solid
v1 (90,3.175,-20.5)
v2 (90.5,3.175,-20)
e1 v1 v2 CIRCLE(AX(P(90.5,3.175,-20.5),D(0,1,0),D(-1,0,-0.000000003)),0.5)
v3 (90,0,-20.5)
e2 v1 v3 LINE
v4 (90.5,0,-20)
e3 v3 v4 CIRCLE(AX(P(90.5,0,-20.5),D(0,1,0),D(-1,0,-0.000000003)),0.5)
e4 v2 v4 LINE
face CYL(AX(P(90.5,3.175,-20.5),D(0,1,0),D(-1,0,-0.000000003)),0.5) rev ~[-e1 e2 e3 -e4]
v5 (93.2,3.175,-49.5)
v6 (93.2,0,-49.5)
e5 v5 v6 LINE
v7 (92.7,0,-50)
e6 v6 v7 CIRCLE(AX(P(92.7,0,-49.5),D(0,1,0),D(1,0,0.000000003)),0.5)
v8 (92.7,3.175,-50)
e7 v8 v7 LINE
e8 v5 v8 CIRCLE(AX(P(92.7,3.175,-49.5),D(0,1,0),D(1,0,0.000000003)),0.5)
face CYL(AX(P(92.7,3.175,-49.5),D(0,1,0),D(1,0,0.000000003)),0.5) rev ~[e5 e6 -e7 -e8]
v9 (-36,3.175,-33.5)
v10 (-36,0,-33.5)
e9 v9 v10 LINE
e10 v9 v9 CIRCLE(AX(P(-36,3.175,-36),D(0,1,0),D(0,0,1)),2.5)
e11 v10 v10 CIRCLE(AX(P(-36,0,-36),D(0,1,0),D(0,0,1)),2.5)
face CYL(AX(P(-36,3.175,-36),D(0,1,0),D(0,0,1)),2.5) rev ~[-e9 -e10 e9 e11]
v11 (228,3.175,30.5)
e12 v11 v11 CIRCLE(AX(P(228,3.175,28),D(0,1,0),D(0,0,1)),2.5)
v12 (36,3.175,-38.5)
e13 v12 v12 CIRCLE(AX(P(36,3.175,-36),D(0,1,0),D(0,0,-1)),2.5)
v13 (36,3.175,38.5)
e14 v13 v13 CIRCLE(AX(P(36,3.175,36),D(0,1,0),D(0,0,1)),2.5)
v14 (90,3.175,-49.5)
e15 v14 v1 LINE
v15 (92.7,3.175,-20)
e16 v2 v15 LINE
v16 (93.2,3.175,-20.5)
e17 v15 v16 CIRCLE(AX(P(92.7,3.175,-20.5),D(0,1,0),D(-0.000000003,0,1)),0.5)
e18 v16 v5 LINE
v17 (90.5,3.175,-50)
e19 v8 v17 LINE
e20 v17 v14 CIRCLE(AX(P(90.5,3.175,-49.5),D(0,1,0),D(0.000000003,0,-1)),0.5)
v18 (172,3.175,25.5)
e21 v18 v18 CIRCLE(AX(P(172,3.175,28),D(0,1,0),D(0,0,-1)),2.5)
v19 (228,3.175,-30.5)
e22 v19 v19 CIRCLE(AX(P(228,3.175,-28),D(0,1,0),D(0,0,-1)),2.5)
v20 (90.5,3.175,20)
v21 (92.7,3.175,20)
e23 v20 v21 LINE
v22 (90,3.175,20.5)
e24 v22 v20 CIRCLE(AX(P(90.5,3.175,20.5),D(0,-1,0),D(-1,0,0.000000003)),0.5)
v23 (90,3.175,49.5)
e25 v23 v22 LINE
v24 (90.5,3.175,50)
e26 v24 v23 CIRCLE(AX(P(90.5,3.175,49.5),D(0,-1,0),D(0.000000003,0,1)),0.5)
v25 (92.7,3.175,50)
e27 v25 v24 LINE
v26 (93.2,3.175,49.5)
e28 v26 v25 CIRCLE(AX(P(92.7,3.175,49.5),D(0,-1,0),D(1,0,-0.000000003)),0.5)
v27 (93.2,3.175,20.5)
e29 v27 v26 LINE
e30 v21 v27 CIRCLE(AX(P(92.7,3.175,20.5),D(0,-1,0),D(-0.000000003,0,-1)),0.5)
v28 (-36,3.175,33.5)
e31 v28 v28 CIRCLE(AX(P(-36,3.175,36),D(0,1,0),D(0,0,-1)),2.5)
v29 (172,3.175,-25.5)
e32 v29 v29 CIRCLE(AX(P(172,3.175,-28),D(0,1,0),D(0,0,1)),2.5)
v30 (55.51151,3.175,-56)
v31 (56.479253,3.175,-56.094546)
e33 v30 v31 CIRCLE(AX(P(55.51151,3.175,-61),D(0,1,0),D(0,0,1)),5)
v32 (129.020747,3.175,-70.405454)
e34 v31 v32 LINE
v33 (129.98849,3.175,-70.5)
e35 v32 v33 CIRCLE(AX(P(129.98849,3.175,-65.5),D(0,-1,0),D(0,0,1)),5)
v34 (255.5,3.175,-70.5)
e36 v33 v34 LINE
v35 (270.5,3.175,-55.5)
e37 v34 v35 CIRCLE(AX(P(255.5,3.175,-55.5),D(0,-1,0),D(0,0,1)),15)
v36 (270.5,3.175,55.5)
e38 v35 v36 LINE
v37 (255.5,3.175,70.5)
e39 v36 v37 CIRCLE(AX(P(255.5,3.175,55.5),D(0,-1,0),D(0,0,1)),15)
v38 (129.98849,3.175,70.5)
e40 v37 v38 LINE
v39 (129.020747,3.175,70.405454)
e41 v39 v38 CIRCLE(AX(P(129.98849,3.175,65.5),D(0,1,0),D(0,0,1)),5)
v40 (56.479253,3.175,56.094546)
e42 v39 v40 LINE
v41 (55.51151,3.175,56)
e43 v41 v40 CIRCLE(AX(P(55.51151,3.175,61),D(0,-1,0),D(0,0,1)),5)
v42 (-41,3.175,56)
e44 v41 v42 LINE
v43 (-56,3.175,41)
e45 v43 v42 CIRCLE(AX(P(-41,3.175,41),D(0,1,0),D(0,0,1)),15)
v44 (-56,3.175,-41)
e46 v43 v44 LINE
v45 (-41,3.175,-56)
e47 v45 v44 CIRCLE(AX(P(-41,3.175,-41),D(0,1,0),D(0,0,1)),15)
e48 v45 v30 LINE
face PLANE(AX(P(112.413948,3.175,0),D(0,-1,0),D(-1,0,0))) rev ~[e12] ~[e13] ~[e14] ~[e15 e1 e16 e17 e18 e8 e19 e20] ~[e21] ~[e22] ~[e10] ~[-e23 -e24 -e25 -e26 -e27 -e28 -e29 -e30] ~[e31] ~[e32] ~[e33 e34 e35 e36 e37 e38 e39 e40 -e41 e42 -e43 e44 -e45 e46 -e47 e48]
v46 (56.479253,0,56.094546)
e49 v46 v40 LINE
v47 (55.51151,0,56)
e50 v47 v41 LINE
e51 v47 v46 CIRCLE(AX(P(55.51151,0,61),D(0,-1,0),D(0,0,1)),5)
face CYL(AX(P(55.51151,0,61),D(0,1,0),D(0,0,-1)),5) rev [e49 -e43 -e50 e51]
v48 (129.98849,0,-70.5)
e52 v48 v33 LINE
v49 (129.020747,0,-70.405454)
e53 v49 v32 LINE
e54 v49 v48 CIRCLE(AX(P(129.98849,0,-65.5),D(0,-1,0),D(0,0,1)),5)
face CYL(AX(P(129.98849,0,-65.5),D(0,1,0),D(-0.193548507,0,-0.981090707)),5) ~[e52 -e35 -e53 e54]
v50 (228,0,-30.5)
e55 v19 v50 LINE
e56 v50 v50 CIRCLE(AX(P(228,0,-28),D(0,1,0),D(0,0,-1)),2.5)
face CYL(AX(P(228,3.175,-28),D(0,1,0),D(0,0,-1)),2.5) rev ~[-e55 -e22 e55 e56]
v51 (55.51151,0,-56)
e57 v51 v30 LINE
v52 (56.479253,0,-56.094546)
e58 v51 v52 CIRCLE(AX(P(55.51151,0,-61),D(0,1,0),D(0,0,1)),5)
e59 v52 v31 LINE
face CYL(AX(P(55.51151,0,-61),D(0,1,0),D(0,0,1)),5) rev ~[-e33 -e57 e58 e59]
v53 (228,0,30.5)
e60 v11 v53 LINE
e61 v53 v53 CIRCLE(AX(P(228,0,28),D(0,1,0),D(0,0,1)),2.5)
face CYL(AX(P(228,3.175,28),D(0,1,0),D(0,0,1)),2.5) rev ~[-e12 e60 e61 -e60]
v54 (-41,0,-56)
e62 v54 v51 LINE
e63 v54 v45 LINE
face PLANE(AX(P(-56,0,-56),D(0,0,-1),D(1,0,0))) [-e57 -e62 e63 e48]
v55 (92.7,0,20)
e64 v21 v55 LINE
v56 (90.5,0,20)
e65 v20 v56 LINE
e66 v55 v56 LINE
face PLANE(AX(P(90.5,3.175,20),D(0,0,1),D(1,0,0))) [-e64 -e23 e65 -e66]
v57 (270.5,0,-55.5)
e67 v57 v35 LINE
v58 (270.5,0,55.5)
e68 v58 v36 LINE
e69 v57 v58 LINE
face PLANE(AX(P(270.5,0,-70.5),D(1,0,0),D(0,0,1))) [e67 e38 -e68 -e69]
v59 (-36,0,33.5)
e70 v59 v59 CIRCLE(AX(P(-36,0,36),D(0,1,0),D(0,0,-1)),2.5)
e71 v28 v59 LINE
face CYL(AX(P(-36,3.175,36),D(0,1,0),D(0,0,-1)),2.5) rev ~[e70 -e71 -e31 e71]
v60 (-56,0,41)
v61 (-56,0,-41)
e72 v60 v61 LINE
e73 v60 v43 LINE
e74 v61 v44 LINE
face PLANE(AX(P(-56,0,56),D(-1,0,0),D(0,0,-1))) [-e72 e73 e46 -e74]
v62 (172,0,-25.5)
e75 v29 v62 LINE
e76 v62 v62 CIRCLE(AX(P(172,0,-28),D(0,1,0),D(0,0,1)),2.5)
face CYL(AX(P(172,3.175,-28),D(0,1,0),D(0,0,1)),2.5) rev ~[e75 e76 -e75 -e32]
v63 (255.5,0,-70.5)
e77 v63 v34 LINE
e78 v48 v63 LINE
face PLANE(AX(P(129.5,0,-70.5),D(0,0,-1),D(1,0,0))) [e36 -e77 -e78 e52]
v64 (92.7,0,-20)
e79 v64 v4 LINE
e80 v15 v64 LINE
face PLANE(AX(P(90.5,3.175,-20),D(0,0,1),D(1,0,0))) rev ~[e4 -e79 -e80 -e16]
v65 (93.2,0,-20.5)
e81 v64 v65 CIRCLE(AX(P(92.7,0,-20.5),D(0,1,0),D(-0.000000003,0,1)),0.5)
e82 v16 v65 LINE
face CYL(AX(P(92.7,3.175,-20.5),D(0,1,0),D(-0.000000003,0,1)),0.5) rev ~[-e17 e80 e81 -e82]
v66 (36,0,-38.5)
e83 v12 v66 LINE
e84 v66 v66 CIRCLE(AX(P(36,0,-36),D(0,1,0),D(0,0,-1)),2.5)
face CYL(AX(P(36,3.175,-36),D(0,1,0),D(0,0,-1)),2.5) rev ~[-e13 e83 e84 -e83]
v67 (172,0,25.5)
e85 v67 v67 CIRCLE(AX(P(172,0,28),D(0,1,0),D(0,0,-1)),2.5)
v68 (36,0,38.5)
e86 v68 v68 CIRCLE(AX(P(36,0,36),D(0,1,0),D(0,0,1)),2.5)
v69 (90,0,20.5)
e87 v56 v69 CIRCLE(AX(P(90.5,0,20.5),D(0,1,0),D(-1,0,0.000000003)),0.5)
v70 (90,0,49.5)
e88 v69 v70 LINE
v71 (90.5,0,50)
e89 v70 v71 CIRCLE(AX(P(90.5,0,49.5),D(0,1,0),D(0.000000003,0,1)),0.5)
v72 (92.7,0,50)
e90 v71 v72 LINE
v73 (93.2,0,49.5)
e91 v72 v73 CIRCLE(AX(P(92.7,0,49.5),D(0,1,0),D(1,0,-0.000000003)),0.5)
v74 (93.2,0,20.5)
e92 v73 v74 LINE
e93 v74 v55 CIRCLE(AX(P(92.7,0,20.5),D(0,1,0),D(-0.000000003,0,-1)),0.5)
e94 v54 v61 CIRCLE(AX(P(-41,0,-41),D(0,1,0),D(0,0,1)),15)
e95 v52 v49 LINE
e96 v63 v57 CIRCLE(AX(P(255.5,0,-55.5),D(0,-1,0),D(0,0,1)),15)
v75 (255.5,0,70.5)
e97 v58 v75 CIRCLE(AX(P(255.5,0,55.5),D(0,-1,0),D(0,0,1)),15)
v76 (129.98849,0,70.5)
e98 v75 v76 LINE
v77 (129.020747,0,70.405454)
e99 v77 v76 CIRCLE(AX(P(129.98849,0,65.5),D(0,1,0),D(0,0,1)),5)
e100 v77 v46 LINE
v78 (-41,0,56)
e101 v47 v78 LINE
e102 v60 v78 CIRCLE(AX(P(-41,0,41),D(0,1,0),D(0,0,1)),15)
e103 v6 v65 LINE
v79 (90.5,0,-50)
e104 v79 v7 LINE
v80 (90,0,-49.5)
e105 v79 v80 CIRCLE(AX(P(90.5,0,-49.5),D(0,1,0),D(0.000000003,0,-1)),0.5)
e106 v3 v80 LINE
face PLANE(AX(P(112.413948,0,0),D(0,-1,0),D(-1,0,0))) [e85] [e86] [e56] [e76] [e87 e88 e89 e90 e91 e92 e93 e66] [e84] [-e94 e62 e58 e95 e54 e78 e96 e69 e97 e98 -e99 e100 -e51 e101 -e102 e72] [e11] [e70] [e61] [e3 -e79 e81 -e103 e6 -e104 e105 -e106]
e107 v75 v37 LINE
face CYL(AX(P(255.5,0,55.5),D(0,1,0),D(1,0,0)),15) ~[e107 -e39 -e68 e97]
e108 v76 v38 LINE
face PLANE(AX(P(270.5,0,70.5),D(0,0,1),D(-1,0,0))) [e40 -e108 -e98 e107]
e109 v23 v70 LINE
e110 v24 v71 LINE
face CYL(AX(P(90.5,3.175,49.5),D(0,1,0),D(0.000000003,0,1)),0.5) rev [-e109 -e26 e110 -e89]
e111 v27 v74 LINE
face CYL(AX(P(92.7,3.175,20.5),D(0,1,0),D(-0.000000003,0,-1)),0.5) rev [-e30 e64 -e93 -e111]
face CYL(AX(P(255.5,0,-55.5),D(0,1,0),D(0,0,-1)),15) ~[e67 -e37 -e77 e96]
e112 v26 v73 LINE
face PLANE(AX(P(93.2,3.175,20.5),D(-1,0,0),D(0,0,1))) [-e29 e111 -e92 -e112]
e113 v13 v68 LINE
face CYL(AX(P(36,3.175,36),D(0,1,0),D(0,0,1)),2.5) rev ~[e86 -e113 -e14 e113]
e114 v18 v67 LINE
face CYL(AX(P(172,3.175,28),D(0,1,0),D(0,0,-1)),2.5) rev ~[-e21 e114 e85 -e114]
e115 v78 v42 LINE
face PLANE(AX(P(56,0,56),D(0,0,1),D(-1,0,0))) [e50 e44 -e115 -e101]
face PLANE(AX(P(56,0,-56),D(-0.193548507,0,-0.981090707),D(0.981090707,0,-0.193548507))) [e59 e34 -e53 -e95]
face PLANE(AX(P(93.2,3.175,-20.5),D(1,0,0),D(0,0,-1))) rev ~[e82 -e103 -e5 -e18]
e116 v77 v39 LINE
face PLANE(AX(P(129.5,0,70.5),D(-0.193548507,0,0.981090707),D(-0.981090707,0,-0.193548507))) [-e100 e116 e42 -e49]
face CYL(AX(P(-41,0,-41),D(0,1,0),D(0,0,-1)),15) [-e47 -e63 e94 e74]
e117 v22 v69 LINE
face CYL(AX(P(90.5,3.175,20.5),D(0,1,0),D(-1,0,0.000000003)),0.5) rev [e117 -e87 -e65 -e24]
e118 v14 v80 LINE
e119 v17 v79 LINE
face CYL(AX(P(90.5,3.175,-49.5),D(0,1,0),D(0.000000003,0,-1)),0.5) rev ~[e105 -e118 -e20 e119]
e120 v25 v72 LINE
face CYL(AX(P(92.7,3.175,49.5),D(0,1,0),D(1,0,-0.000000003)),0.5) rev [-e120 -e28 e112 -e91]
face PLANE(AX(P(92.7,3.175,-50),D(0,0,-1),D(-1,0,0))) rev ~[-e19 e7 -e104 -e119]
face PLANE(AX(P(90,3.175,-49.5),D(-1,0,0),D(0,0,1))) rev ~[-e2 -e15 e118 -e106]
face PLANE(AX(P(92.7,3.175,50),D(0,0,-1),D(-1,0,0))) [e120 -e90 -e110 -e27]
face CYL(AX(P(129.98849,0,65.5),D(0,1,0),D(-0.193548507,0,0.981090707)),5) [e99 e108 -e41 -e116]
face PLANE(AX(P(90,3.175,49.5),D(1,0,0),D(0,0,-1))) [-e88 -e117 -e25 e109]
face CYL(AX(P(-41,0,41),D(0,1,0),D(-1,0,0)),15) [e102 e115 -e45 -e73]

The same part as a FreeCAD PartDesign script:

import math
import FreeCAD as App
import Part
import Sketcher

V = App.Vector


def edges_at(feature, points):
    """Names of the edges that pass closest to the given points."""
    edges = feature.Shape.Edges
    near = lambda p: min(range(len(edges)), key=lambda i: edges[i].distToShape(Part.Vertex(*p))[0])
    return sorted({f"Edge{near(p) + 1}" for p in points})


def add_polygon(sketch, points):
    """Adds a closed chain of lines whose ends are joined by coincident constraints."""
    first, n = sketch.GeometryCount, len(points)
    for a, b in zip(points, points[1:] + points[:1]):
        sketch.addGeometry(Part.LineSegment(App.Vector(*a, 0), App.Vector(*b, 0)), False)
    for i in range(n):
        sketch.addConstraint(Sketcher.Constraint("Coincident", first + i, 2, first + (i + 1) % n, 1))

doc = App.newDocument("Part")
body = doc.addObject("PartDesign::Body", "Body")

# Sketch on XZ plane
sketch1 = body.newObject("Sketcher::SketchObject", "Sketch")
sketch1.AttachmentSupport = (doc.getObject("XZ_Plane"), [""])
sketch1.MapMode = "FlatFace"
add_polygon(sketch1, [(130, -70), (56, -56), (-56, -56), (-56, 56), (56, 56), (130, 70), (270, 70), (270, -70)])  # lines 0-7
sketch1.addConstraint(Sketcher.Constraint("Horizontal", 1))
sketch1.addConstraint(Sketcher.Constraint("Vertical", 2))
sketch1.addConstraint(Sketcher.Constraint("Horizontal", 3))
sketch1.addConstraint(Sketcher.Constraint("Horizontal", 5))
sketch1.addConstraint(Sketcher.Constraint("Vertical", 6))
sketch1.addConstraint(Sketcher.Constraint("Horizontal", 7))
sketch1.addConstraint(Sketcher.Constraint("Symmetric", 0, 2, 2, 2, -1, 1))
sketch1.addConstraint(Sketcher.Constraint("Symmetric", 4, 2, 7, 2, -1))
sketch1.addConstraint(Sketcher.Constraint("Vertical", 0, 2, 3, 2))
sketch1.addConstraint(Sketcher.Constraint("Equal", 3, 2))
sketch1.addConstraint(Sketcher.Constraint("Equal", 7, 6))
sketch1.addConstraint(Sketcher.Constraint("DistanceX", 1, 2, 1, 1, 112.0))
sketch1.addConstraint(Sketcher.Constraint("DistanceX", 5, 1, 5, 2, 141.0))
sketch1.addConstraint(Sketcher.Constraint("DistanceX", -1, 1, 4, 2, 129.5))
pad1 = body.newObject("PartDesign::Pad", "Pad")
pad1.Profile = sketch1
pad1.Length = 3.175
pad1.Reversed = True

# Sketch on XZ plane
sketch2 = body.newObject("Sketcher::SketchObject", "Sketch001")
sketch2.AttachmentSupport = (doc.getObject("XZ_Plane"), [""])
sketch2.MapMode = "FlatFace"
sketch2.AttachmentOffset = App.Placement(V(0, 0, -3.175), App.Rotation())
sketch2.addGeometry(Part.Circle(V(172, -28, 0), V(0, 0, 1), 2.5), False)
sketch2.addGeometry(Part.Circle(V(228, -28, 0), V(0, 0, 1), 2.5), False)
sketch2.addGeometry(Part.Circle(V(228, 28, 0), V(0, 0, 1), 2.5), False)
sketch2.addGeometry(Part.Circle(V(172, 28, 0), V(0, 0, 1), 2.5), False)
sketch2.addConstraint(Sketcher.Constraint("Equal", 0, 1))
sketch2.addConstraint(Sketcher.Constraint("Equal", 1, 2))
sketch2.addConstraint(Sketcher.Constraint("Equal", 2, 3))
sketch2.addConstraint(Sketcher.Constraint("Symmetric", 1, 3, 2, 3, -1))
sketch2.addConstraint(Sketcher.Constraint("Symmetric", 0, 3, 3, 3, -1))
sketch2.addConstraint(Sketcher.Constraint("Horizontal", 0, 3, 1, 3))
sketch2.addConstraint(Sketcher.Constraint("Diameter", 0, 5.0))
sketch2.addConstraint(Sketcher.Constraint("DistanceX", -1, 1, 0, 3, 172.0))
sketch2.addConstraint(Sketcher.Constraint("DistanceY", 0, 3, -1, 1, 28.0))
sketch2.addConstraint(Sketcher.Constraint("DistanceX", -1, 1, 1, 3, 228.0))
pocket1 = body.newObject("PartDesign::Pocket", "Pocket")
pocket1.Profile = sketch2
pocket1.Type = "ThroughAll"
pocket1.Reversed = True

# Sketch on XZ plane
sketch3 = body.newObject("Sketcher::SketchObject", "Sketch002")
sketch3.AttachmentSupport = (doc.getObject("XZ_Plane"), [""])
sketch3.MapMode = "FlatFace"
sketch3.AttachmentOffset = App.Placement(V(0, 0, -3.175), App.Rotation())
sketch3.addGeometry(Part.LineSegment(V(93.2, -20.5, 0), V(93.2, -49.5, 0)), False)
sketch3.addGeometry(Part.ArcOfCircle(Part.Circle(V(92.7, -49.5, 0), V(0, 0, 1), 0.5), math.radians(-90), math.radians(0)), False)
sketch3.addGeometry(Part.LineSegment(V(92.7, -50, 0), V(90.5, -50, 0)), False)
sketch3.addGeometry(Part.ArcOfCircle(Part.Circle(V(90.5, -49.5, 0), V(0, 0, 1), 0.5), math.radians(180), math.radians(270)), False)
sketch3.addGeometry(Part.LineSegment(V(90, -49.5, 0), V(90, -20.5, 0)), False)
sketch3.addGeometry(Part.ArcOfCircle(Part.Circle(V(90.5, -20.5, 0), V(0, 0, 1), 0.5), math.radians(90), math.radians(180)), False)
sketch3.addGeometry(Part.LineSegment(V(90.5, -20, 0), V(92.7, -20, 0)), False)
sketch3.addGeometry(Part.ArcOfCircle(Part.Circle(V(92.7, -20.5, 0), V(0, 0, 1), 0.5), math.radians(0), math.radians(90)), False)
sketch3.addGeometry(Part.LineSegment(V(92.7, 20, 0), V(90.5, 20, 0)), False)
sketch3.addGeometry(Part.ArcOfCircle(Part.Circle(V(90.5, 20.5, 0), V(0, 0, 1), 0.5), math.radians(180), math.radians(270)), False)
sketch3.addGeometry(Part.LineSegment(V(90, 20.5, 0), V(90, 49.5, 0)), False)
sketch3.addGeometry(Part.ArcOfCircle(Part.Circle(V(90.5, 49.5, 0), V(0, 0, 1), 0.5), math.radians(90), math.radians(180)), False)
sketch3.addGeometry(Part.LineSegment(V(90.5, 50, 0), V(92.7, 50, 0)), False)
sketch3.addGeometry(Part.ArcOfCircle(Part.Circle(V(92.7, 49.5, 0), V(0, 0, 1), 0.5), math.radians(0), math.radians(90)), False)
sketch3.addGeometry(Part.LineSegment(V(93.2, 49.5, 0), V(93.2, 20.5, 0)), False)
sketch3.addGeometry(Part.ArcOfCircle(Part.Circle(V(92.7, 20.5, 0), V(0, 0, 1), 0.5), math.radians(-90), math.radians(0)), False)
sketch3.addConstraint(Sketcher.Constraint("Tangent", 0, 2, 1, 2))
sketch3.addConstraint(Sketcher.Constraint("Tangent", 1, 1, 2, 1))
sketch3.addConstraint(Sketcher.Constraint("Tangent", 2, 2, 3, 2))
sketch3.addConstraint(Sketcher.Constraint("Tangent", 3, 1, 4, 1))
sketch3.addConstraint(Sketcher.Constraint("Tangent", 4, 2, 5, 2))
sketch3.addConstraint(Sketcher.Constraint("Tangent", 5, 1, 6, 1))
sketch3.addConstraint(Sketcher.Constraint("Tangent", 6, 2, 7, 2))
sketch3.addConstraint(Sketcher.Constraint("Tangent", 7, 1, 0, 1))
sketch3.addConstraint(Sketcher.Constraint("Tangent", 8, 2, 9, 2))
sketch3.addConstraint(Sketcher.Constraint("Tangent", 9, 1, 10, 1))
sketch3.addConstraint(Sketcher.Constraint("Tangent", 10, 2, 11, 2))
sketch3.addConstraint(Sketcher.Constraint("Tangent", 11, 1, 12, 1))
sketch3.addConstraint(Sketcher.Constraint("Tangent", 12, 2, 13, 2))
sketch3.addConstraint(Sketcher.Constraint("Tangent", 13, 1, 14, 1))
sketch3.addConstraint(Sketcher.Constraint("Tangent", 14, 2, 15, 2))
sketch3.addConstraint(Sketcher.Constraint("Tangent", 15, 1, 8, 1))
sketch3.addConstraint(Sketcher.Constraint("Vertical", 0))
sketch3.addConstraint(Sketcher.Constraint("Horizontal", 2))
sketch3.addConstraint(Sketcher.Constraint("Vertical", 4))
sketch3.addConstraint(Sketcher.Constraint("Horizontal", 6))
sketch3.addConstraint(Sketcher.Constraint("Horizontal", 8))
sketch3.addConstraint(Sketcher.Constraint("Vertical", 10))
sketch3.addConstraint(Sketcher.Constraint("Horizontal", 12))
sketch3.addConstraint(Sketcher.Constraint("Vertical", 14))
sketch3.addConstraint(Sketcher.Constraint("Equal", 1, 3))
sketch3.addConstraint(Sketcher.Constraint("Equal", 3, 5))
sketch3.addConstraint(Sketcher.Constraint("Equal", 5, 7))
sketch3.addConstraint(Sketcher.Constraint("Equal", 7, 9))
sketch3.addConstraint(Sketcher.Constraint("Equal", 9, 11))
sketch3.addConstraint(Sketcher.Constraint("Equal", 11, 13))
sketch3.addConstraint(Sketcher.Constraint("Equal", 13, 15))
sketch3.addConstraint(Sketcher.Constraint("Symmetric", 5, 3, 9, 3, -1))
sketch3.addConstraint(Sketcher.Constraint("Symmetric", 1, 3, 13, 3, -1))
sketch3.addConstraint(Sketcher.Constraint("Radius", 1, 0.5))
sketch3.addConstraint(Sketcher.Constraint("DistanceY", 0, 2, 0, 1, 29.0))
sketch3.addConstraint(Sketcher.Constraint("DistanceX", 2, 2, 2, 1, 2.2))
sketch3.addConstraint(Sketcher.Constraint("DistanceY", 1, 1, -1, 1, 50.0))
sketch3.addConstraint(Sketcher.Constraint("DistanceX", -1, 1, 3, 1, 90.0))
pocket2 = body.newObject("PartDesign::Pocket", "Pocket001")
pocket2.Profile = sketch3
pocket2.Type = "ThroughAll"
pocket2.Reversed = True
doc.recompute()

fillet = body.newObject("PartDesign::Fillet", "Fillet")
fillet.Base = (pocket2, edges_at(pocket2, [
    (270.5, 1.587, 70.5),
    (-56, 1.587, 56),
    (-56, 1.587, -56),
    (270.5, 1.587, -70.5),
]))
fillet.Radius = 15
doc.recompute()

fillet2 = body.newObject("PartDesign::Fillet", "Fillet001")
fillet2.Base = (fillet, edges_at(fillet, [
    (129.5, 1.587, 70.5),
    (56, 1.587, 56),
    (56, 1.587, -56),
    (129.5, 1.587, -70.5),
]))
fillet2.Radius = 5

# Sketch on XZ plane
sketch4 = body.newObject("Sketcher::SketchObject", "Sketch003")
sketch4.AttachmentSupport = (doc.getObject("XZ_Plane"), [""])
sketch4.MapMode = "FlatFace"
sketch4.AttachmentOffset = App.Placement(V(0, 0, -3.175), App.Rotation())
sketch4.addGeometry(Part.Circle(V(-36, -36, 0), V(0, 0, 1), 2.5), False)
sketch4.addGeometry(Part.Circle(V(36, -36, 0), V(0, 0, 1), 2.5), False)
sketch4.addGeometry(Part.Circle(V(-36, 36, 0), V(0, 0, 1), 2.5), False)
sketch4.addGeometry(Part.Circle(V(36, 36, 0), V(0, 0, 1), 2.5), False)
sketch4.addConstraint(Sketcher.Constraint("Equal", 0, 1))
sketch4.addConstraint(Sketcher.Constraint("Equal", 1, 2))
sketch4.addConstraint(Sketcher.Constraint("Equal", 2, 3))
sketch4.addConstraint(Sketcher.Constraint("Symmetric", 1, 3, 2, 3, -1, 1))
sketch4.addConstraint(Sketcher.Constraint("Symmetric", 0, 3, 3, 3, -1, 1))
sketch4.addConstraint(Sketcher.Constraint("Symmetric", 0, 3, 1, 3, -2))
sketch4.addConstraint(Sketcher.Constraint("Diameter", 0, 5.0))
sketch4.addConstraint(Sketcher.Constraint("DistanceX", 0, 3, -1, 1, 36.0))
sketch4.addConstraint(Sketcher.Constraint("DistanceY", 0, 3, -1, 1, 36.0))
pocket3 = body.newObject("PartDesign::Pocket", "Pocket002")
pocket3.Profile = sketch4
pocket3.Type = "ThroughAll"
pocket3.Reversed = True

doc.recompute()
